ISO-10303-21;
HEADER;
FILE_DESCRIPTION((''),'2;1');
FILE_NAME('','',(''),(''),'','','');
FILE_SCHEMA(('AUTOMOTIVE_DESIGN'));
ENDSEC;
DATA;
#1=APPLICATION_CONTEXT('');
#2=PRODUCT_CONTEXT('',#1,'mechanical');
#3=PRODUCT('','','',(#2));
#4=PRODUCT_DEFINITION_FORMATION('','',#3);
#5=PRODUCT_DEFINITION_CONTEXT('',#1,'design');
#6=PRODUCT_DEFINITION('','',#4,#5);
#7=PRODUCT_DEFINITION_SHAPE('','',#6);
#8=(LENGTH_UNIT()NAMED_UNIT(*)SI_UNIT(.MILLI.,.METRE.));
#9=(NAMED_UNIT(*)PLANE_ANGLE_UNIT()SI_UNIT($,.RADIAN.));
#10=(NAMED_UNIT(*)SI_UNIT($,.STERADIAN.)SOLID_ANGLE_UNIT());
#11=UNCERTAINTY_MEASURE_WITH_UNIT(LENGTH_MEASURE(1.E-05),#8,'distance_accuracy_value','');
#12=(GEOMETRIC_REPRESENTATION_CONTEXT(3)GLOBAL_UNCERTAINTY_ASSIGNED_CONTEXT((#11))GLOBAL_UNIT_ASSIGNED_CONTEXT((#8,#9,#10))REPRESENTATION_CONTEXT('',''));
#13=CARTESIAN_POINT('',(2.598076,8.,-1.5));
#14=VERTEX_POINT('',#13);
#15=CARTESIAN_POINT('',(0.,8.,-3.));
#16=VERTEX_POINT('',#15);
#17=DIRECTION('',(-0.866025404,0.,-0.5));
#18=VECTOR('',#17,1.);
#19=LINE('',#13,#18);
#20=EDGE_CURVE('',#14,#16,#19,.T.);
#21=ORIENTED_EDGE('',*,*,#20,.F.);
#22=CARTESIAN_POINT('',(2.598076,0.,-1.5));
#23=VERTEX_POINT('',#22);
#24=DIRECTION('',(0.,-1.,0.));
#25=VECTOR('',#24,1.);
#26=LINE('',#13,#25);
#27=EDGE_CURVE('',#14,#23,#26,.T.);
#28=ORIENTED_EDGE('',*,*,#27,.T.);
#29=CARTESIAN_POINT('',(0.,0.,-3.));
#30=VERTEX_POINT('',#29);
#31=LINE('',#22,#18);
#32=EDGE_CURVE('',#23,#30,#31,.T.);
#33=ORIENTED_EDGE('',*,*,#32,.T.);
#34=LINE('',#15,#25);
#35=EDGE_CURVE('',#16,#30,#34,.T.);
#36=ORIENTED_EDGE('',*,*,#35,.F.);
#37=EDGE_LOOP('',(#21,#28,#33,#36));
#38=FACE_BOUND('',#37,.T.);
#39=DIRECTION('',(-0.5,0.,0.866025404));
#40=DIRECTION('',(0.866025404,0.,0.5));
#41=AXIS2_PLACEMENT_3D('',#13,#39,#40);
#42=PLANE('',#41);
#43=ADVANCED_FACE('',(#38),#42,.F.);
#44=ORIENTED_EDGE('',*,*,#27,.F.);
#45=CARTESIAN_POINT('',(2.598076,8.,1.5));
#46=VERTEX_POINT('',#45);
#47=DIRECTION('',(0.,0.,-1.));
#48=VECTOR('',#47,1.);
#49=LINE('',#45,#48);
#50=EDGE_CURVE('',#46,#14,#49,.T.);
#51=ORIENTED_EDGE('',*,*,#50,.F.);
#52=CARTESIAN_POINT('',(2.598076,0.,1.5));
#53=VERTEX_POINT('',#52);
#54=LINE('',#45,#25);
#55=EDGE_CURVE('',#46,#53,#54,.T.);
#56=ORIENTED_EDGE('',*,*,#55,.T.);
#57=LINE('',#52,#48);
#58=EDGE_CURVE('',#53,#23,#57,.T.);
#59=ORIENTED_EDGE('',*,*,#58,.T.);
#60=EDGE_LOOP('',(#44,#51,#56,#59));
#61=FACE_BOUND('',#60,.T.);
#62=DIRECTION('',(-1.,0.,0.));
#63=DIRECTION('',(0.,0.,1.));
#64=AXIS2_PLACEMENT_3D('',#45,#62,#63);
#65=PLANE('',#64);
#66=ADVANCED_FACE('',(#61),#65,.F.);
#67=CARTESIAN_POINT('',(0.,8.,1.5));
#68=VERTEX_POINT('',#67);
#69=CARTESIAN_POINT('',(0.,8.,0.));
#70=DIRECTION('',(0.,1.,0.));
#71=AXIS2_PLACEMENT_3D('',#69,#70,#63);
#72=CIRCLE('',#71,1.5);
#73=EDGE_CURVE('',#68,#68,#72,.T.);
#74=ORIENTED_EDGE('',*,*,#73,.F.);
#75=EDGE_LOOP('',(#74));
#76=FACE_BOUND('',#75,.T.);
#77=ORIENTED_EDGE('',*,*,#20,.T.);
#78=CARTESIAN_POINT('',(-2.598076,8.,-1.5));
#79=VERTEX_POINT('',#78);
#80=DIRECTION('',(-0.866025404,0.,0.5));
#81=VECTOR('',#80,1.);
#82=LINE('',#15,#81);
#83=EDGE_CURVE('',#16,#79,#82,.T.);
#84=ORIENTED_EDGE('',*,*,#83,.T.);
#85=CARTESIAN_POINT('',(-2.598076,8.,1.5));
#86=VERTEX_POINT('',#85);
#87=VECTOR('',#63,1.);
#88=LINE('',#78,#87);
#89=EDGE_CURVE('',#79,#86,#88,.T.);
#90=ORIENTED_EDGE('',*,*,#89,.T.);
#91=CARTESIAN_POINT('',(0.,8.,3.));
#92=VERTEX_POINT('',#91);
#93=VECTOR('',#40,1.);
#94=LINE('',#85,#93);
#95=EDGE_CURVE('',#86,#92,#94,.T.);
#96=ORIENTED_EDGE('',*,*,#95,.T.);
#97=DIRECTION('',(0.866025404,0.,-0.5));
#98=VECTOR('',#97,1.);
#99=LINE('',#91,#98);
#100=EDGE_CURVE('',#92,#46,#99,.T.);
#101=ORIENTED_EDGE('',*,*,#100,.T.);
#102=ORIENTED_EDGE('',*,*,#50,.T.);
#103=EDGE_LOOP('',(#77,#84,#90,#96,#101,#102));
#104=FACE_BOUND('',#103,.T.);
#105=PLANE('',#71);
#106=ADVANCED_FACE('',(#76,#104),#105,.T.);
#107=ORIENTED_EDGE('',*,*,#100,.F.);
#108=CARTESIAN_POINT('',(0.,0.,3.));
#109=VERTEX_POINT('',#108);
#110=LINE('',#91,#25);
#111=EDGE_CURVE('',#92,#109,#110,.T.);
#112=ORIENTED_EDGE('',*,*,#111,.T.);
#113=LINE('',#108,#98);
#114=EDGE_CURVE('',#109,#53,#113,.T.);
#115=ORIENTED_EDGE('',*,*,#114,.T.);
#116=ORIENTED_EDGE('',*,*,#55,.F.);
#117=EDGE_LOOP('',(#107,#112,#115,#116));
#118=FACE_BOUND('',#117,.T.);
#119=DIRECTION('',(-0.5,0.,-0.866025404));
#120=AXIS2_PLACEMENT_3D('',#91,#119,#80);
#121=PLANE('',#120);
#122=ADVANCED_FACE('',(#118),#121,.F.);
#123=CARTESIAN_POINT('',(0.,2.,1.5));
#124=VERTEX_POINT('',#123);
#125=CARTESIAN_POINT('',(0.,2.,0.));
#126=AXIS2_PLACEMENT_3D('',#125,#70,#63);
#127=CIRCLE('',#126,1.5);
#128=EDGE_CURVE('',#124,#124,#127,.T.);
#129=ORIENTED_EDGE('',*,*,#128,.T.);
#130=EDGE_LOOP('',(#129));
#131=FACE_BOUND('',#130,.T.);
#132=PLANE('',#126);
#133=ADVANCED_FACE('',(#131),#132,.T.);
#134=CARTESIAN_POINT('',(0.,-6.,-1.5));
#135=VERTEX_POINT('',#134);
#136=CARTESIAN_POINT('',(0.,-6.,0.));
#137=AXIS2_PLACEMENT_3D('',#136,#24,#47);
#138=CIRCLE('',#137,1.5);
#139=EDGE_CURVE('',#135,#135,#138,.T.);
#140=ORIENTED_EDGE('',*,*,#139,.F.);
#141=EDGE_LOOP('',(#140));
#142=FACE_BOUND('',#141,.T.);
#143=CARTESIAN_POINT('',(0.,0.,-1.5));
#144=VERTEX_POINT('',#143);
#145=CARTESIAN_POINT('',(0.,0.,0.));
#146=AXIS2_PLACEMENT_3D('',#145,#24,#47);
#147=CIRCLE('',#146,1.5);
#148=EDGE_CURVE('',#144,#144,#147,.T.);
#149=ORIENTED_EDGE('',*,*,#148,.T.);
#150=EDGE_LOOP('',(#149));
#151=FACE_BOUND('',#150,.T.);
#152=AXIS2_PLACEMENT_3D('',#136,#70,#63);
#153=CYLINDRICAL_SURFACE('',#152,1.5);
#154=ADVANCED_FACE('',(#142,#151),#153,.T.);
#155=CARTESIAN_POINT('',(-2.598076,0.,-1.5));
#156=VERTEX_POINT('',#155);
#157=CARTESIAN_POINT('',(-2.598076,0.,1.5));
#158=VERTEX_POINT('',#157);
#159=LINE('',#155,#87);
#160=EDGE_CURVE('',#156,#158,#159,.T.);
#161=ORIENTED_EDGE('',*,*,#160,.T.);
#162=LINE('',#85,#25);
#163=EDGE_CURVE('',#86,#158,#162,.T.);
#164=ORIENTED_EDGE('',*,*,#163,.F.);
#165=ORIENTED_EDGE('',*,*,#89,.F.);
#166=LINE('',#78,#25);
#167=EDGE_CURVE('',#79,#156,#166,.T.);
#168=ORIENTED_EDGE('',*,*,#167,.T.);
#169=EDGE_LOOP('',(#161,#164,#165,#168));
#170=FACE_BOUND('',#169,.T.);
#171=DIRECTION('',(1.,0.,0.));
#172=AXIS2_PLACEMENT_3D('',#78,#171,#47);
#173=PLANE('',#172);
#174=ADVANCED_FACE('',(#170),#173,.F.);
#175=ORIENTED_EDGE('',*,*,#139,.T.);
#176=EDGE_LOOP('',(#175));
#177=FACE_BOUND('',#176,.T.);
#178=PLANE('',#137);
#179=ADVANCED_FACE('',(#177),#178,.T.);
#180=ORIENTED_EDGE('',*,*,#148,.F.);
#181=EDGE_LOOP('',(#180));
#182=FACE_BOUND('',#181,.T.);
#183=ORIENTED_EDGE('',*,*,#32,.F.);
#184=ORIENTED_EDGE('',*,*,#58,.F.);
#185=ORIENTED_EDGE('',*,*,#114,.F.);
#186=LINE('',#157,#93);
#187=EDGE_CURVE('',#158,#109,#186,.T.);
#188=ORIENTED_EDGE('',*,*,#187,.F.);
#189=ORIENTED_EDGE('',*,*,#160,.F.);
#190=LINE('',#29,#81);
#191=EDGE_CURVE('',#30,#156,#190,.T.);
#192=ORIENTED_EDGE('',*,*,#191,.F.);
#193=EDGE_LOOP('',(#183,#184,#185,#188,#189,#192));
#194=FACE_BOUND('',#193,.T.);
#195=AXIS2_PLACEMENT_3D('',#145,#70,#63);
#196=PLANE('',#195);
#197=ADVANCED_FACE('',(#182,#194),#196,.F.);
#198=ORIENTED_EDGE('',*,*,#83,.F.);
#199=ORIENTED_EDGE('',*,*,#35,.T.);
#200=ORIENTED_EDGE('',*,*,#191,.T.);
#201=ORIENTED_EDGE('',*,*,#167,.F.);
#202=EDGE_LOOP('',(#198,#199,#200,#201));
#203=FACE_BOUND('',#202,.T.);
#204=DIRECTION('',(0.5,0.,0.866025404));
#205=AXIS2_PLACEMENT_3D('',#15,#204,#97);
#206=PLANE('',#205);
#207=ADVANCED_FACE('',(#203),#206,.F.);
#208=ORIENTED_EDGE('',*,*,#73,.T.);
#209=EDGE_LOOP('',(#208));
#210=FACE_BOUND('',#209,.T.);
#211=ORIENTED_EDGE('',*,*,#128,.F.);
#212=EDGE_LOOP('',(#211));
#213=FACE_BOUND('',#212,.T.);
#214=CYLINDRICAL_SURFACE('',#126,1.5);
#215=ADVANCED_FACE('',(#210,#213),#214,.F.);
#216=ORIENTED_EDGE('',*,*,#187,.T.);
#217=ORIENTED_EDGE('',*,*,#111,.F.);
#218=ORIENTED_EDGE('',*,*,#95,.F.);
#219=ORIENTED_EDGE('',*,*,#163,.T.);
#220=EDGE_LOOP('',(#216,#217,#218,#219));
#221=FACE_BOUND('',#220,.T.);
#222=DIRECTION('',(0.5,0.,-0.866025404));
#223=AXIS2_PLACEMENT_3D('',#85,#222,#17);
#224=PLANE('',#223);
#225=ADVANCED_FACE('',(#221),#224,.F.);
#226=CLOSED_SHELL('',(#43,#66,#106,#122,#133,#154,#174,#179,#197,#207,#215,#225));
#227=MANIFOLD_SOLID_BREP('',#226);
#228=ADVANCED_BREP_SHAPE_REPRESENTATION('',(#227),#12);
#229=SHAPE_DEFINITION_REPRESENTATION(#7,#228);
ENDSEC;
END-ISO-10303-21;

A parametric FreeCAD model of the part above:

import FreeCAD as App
import Part
import Sketcher
from FreeCAD import Vector
Q = App.Units.Quantity


def add_polygon(sketch, points):
    """Adds a closed chain of lines whose ends are joined by coincident constraints."""
    first, n = sketch.GeometryCount, len(points)
    for a, b in zip(points, points[1:] + points[:1]):
        sketch.addGeometry(Part.LineSegment(App.Vector(*a, 0), App.Vector(*b, 0)), False)
    for i in range(n):
        sketch.addConstraint(Sketcher.Constraint("Coincident", first + i, 2, first + (i + 1) % n, 1))

doc = App.newDocument("Part")
params = doc.addObject("Spreadsheet::Sheet", "Params")
for row, (alias, value) in enumerate([
    ("sketch1_height", "3 mm"),
    ("sketch1_length", "3 mm"),
    ("pad1_length", "8 mm"),
    ("sketch2_diameter", "3 mm"),
    ("pad2_length", "6 mm"),
    ("sketch3_diameter", "3 mm"),
    ("pocket1_length", "6 mm"),
], start=1):
    params.set(f"A{row}", alias)
    params.set(f"B{row}", "=" + value)
    params.setAlias(f"B{row}", alias)

body = doc.addObject("PartDesign::Body", "Body")

# Sketch on XZ plane
sketch1 = body.newObject("Sketcher::SketchObject", "Sketch")
sketch1.AttachmentSupport = (doc.getObject("XZ_Plane"), [""])
sketch1.MapMode = "FlatFace"
add_polygon(sketch1, [(-2.6, -1.5), (-2.6, 1.5), (0, 3), (2.6, 1.5), (2.6, -1.5), (0, -3)])  # lines 0-5
sketch1.addConstraint([
    Sketcher.Constraint("Vertical", 0),
    Sketcher.Constraint("Vertical", 3),
    Sketcher.Constraint("Symmetric", 0, 2, 3, 2, -1, 1),
    Sketcher.Constraint("Symmetric", 1, 2, 4, 2, -1, 1),
    Sketcher.Constraint("PointOnObject", 1, 2, -2),
    Sketcher.Constraint("Parallel", 2, 5),
    Sketcher.Constraint("Horizontal", 0, 2, 2, 2),
    Sketcher.Constraint("DistanceY", 0, 1, 0, 2, Q("3 mm")),
    Sketcher.Constraint("Angle", 1, Q("30 deg")),
    Sketcher.Constraint("Distance", 1, Q("3 mm")),
])
sketch1.setExpression("Constraints[13]", "Params.sketch1_height")
sketch1.setExpression("Constraints[15]", "Params.sketch1_length")
pad1 = body.newObject("PartDesign::Pad", "Pad")
pad1.Profile = sketch1
pad1.setExpression("Length", "Params.pad1_length")
pad1.Reversed = True

# Sketch on XZ plane
sketch2 = body.newObject("Sketcher::SketchObject", "Sketch001")
sketch2.AttachmentSupport = (doc.getObject("XZ_Plane"), [""])
sketch2.MapMode = "FlatFace"
sketch2.addGeometry(Part.Circle(Vector(0, 0, 0), Vector(0, 0, 1), 1.5), False)
sketch2.addConstraint([
    Sketcher.Constraint("Coincident", 0, 3, -1, 1),
    Sketcher.Constraint("Diameter", 0, Q("3 mm")),
])
sketch2.setExpression("Constraints[1]", "Params.sketch2_diameter")
pad2 = body.newObject("PartDesign::Pad", "Pad001")
pad2.Profile = sketch2
pad2.setExpression("Length", "Params.pad2_length")

# Sketch on XZ plane
sketch3 = body.newObject("Sketcher::SketchObject", "Sketch002")
sketch3.AttachmentSupport = (doc.getObject("XZ_Plane"), [""])
sketch3.MapMode = "FlatFace"
sketch3.AttachmentOffset = App.Placement(Vector(0, 0, -8), App.Rotation())
sketch3.addGeometry(Part.Circle(Vector(0, 0, 0), Vector(0, 0, 1), 1.5), False)
sketch3.addConstraint([
    Sketcher.Constraint("Coincident", 0, 3, -1, 1),
    Sketcher.Constraint("Diameter", 0, Q("3 mm")),
])
sketch3.setExpression("Constraints[1]", "Params.sketch3_diameter")
pocket1 = body.newObject("PartDesign::Pocket", "Pocket")
pocket1.Profile = sketch3
pocket1.setExpression("Length", "Params.pocket1_length")
pocket1.Reversed = True

doc.recompute()
